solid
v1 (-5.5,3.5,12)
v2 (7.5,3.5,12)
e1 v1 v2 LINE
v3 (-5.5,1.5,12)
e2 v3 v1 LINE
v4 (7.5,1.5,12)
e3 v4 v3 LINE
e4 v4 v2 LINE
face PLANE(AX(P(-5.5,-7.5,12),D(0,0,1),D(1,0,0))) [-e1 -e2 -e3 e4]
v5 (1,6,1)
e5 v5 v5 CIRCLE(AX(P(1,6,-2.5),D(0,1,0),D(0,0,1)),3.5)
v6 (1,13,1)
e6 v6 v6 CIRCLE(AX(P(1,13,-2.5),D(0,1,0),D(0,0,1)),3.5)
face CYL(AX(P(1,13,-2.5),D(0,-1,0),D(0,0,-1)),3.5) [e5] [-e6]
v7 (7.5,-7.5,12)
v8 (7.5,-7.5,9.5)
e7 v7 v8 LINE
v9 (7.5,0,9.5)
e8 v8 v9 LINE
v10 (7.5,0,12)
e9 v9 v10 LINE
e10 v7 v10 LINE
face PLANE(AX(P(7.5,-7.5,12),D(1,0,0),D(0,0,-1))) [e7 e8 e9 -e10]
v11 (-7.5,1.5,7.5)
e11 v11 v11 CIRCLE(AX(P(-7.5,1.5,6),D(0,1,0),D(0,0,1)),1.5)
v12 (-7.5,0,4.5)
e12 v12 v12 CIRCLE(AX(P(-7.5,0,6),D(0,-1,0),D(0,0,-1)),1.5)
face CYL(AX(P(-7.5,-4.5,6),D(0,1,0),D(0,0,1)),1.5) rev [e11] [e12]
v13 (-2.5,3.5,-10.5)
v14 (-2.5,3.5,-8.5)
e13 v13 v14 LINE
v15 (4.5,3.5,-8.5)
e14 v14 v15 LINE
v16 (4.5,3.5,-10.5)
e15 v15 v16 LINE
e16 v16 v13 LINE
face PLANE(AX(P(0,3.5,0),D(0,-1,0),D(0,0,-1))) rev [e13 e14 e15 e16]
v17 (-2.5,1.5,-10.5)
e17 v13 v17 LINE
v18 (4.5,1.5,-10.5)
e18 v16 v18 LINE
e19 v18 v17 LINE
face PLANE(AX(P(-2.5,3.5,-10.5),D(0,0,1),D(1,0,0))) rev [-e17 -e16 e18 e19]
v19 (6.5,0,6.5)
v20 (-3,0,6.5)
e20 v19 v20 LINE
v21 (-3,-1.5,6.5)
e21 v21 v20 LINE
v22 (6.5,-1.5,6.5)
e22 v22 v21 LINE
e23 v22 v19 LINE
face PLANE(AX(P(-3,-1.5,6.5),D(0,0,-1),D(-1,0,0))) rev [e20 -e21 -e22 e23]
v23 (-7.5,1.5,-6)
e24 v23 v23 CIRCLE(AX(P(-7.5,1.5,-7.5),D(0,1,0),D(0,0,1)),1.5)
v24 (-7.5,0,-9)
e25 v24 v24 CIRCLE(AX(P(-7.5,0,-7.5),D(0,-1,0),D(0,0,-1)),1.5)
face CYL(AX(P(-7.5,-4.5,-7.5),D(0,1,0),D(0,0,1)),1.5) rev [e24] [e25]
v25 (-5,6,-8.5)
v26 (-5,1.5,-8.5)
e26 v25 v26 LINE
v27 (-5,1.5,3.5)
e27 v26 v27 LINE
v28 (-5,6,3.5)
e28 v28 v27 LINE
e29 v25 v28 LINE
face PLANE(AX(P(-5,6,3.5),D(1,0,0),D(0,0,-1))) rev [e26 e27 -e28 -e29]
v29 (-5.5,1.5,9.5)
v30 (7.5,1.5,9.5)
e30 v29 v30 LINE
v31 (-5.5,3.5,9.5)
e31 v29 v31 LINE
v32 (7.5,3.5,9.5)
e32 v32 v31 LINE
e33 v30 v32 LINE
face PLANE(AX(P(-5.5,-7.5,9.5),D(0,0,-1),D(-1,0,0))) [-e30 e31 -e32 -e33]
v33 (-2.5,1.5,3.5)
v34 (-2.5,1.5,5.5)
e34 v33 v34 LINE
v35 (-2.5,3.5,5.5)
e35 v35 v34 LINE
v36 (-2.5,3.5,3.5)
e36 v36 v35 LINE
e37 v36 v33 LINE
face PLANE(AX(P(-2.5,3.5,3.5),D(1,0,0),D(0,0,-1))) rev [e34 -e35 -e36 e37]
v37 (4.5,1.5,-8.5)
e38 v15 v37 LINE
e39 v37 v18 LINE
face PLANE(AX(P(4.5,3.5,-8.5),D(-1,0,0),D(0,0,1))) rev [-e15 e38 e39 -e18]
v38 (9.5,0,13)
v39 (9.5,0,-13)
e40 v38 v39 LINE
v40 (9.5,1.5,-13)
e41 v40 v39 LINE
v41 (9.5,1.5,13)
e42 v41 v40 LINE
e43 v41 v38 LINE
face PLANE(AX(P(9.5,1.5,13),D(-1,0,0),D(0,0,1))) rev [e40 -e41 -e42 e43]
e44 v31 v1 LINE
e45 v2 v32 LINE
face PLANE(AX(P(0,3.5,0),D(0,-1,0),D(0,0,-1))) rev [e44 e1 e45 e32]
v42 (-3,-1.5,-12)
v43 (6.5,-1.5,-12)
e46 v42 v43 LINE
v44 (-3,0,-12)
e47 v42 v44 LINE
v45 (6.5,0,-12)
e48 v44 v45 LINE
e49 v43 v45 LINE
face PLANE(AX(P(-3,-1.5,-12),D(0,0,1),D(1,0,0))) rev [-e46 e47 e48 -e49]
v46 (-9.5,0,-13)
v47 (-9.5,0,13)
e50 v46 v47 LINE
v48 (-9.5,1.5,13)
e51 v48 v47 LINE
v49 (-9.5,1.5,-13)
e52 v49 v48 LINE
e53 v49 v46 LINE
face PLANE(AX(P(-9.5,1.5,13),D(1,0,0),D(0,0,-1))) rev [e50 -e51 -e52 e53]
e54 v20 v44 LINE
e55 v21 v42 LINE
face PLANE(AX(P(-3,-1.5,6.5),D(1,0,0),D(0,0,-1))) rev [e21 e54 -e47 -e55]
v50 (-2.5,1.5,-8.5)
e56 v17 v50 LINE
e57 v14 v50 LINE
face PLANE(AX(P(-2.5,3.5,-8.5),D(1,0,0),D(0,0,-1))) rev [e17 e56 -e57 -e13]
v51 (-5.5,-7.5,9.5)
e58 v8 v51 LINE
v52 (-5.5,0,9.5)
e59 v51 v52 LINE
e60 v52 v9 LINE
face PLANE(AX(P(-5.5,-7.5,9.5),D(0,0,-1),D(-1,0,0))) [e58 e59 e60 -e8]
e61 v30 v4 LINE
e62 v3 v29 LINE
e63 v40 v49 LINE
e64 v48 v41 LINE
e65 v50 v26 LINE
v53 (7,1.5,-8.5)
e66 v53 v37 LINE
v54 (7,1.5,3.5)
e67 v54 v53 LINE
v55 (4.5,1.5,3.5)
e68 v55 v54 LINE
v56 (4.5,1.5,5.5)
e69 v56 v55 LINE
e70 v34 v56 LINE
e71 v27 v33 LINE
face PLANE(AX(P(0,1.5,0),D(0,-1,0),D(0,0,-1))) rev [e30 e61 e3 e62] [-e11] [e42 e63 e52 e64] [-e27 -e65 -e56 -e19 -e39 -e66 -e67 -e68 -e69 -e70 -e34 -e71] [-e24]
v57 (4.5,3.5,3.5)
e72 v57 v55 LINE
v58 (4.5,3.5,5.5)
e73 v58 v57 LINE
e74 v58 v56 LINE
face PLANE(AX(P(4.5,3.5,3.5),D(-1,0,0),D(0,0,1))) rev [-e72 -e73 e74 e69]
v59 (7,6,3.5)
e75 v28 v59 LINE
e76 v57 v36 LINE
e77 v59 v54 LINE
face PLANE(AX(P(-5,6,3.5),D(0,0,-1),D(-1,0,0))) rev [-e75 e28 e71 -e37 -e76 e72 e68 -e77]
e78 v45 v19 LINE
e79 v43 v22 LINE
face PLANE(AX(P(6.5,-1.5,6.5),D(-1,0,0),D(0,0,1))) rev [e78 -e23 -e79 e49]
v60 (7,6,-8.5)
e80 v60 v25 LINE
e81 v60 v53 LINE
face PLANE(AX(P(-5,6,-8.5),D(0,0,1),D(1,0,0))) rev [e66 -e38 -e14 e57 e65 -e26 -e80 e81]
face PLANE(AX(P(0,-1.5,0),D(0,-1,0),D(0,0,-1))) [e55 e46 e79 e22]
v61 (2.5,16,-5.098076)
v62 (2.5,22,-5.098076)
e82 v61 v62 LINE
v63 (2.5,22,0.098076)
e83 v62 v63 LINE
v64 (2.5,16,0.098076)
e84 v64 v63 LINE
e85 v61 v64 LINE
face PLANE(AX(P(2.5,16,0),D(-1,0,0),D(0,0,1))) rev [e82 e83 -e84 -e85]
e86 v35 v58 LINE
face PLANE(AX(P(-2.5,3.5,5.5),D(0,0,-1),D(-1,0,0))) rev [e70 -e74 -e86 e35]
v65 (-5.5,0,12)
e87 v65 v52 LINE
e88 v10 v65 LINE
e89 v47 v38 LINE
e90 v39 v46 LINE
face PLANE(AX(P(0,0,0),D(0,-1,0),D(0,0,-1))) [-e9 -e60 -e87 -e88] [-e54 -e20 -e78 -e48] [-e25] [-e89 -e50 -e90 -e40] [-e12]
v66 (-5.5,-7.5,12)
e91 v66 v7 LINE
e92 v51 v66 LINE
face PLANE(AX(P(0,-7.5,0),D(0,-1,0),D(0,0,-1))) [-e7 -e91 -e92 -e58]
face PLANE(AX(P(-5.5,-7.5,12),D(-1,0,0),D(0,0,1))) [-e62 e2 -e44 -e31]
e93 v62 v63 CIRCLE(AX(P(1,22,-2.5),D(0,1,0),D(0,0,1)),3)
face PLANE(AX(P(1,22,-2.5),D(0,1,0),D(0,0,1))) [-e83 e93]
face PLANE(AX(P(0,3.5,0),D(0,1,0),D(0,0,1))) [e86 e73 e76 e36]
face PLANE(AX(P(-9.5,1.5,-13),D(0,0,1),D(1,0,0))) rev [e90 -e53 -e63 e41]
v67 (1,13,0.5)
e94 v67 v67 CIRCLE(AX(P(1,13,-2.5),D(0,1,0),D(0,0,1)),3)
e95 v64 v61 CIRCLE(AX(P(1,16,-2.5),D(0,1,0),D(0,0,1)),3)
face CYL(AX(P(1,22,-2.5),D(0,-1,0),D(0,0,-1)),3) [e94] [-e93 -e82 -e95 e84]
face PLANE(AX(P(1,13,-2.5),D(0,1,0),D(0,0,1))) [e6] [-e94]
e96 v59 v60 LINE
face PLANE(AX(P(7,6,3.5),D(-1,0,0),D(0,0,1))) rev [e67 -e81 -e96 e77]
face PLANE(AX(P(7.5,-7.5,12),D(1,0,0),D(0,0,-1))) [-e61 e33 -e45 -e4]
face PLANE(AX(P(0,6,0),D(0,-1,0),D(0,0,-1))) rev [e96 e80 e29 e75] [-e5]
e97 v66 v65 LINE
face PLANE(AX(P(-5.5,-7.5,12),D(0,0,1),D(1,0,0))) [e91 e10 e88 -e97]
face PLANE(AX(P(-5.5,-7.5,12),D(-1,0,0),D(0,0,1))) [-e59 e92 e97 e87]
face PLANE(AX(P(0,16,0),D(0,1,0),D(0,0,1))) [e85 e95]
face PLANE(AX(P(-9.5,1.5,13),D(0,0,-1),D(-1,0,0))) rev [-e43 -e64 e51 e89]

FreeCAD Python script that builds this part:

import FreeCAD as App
import Part
import Sketcher
from FreeCAD import Vector


def add_polygon(sketch, points):
    """Adds a closed chain of lines whose ends are joined by coincident constraints."""
    first, n = sketch.GeometryCount, len(points)
    for a, b in zip(points, points[1:] + points[:1]):
        sketch.addGeometry(Part.LineSegment(App.Vector(*a, 0), App.Vector(*b, 0)), False)
    for i in range(n):
        sketch.addConstraint(Sketcher.Constraint("Coincident", first + i, 2, first + (i + 1) % n, 1))

doc = App.newDocument("Part")
body = doc.addObject("PartDesign::Body", "Body")

# Sketch on XZ plane
sketch1 = body.newObject("Sketcher::SketchObject", "Sketch")
sketch1.AttachmentSupport = (doc.getObject("XZ_Plane"), [""])
sketch1.MapMode = "FlatFace"
add_polygon(sketch1, [(-10, -13), (-10, 13), (10, 13), (10, -13)])  # lines 0-3
sketch1.addConstraint([
    Sketcher.Constraint("Vertical", 0),
    Sketcher.Constraint("Horizontal", 1),
    Sketcher.Constraint("Vertical", 2),
    Sketcher.Constraint("Horizontal", 3),
    Sketcher.Constraint("Symmetric", 0, 2, 2, 2, -1, 1),
    Sketcher.Constraint("DistanceX", 1, 1, 1, 2, 19.0),
    Sketcher.Constraint("DistanceY", 0, 1, 0, 2, 26.0),
])
pad1 = body.newObject("PartDesign::Pad", "Pad")
pad1.Profile = sketch1
pad1.Length = 1.5
pad1.Reversed = True

# Sketch on XZ plane
sketch2 = body.newObject("Sketcher::SketchObject", "Sketch001")
sketch2.AttachmentSupport = (doc.getObject("XZ_Plane"), [""])
sketch2.MapMode = "FlatFace"
sketch2.AttachmentOffset = App.Placement(Vector(0, 0, -1.5), App.Rotation())
add_polygon(sketch2, [(-5, -8), (-5, 4), (7, 4), (7, -8)])  # lines 0-3
sketch2.addConstraint([
    Sketcher.Constraint("Vertical", 0),
    Sketcher.Constraint("Horizontal", 1),
    Sketcher.Constraint("Vertical", 2),
    Sketcher.Constraint("Horizontal", 3),
    Sketcher.Constraint("Equal", 3, 0),
    Sketcher.Constraint("DistanceX", 1, 1, 1, 2, 12.0),
    Sketcher.Constraint("DistanceX", 0, 2, -1, 1, 5.0),
    Sketcher.Constraint("DistanceY", -1, 1, 0, 2, 3.5),
])
pad2 = body.newObject("PartDesign::Pad", "Pad001")
pad2.Profile = sketch2
pad2.Length = 4.5
pad2.Reversed = True

# Sketch on XZ plane
sketch3 = body.newObject("Sketcher::SketchObject", "Sketch002")
sketch3.AttachmentSupport = (doc.getObject("XZ_Plane"), [""])
sketch3.MapMode = "FlatFace"
sketch3.AttachmentOffset = App.Placement(Vector(0, 0, -6), App.Rotation())
sketch3.addGeometry(Part.Circle(Vector(1, -2.5, 0), Vector(0, 0, 1), 3.5), False)
sketch3.addConstraint([
    Sketcher.Constraint("Diameter", 0, 7.0),
    Sketcher.Constraint("DistanceX", -1, 1, 0, 3, 1.0),
    Sketcher.Constraint("DistanceY", 0, 3, -1, 1, 2.5),
])
pad3 = body.newObject("PartDesign::Pad", "Pad002")
pad3.Profile = sketch3
pad3.Length = 7
pad3.Reversed = True

# Sketch on XZ plane
sketch4 = body.newObject("Sketcher::SketchObject", "Sketch003")
sketch4.AttachmentSupport = (doc.getObject("XZ_Plane"), [""])
sketch4.MapMode = "FlatFace"
sketch4.AttachmentOffset = App.Placement(Vector(0, 0, -13), App.Rotation())
sketch4.addGeometry(Part.Circle(Vector(1, -2.5, 0), Vector(0, 0, 1), 3), False)
sketch4.addConstraint([
    Sketcher.Constraint("Diameter", 0, 6.0),
    Sketcher.Constraint("DistanceX", -1, 1, 0, 3, 1.0),
    Sketcher.Constraint("DistanceY", 0, 3, -1, 1, 2.5),
])
pad4 = body.newObject("PartDesign::Pad", "Pad003")
pad4.Profile = sketch4
pad4.Length = 9
pad4.Reversed = True

# Sketch on XZ plane
sketch5 = body.newObject("Sketcher::SketchObject", "Sketch004")
sketch5.AttachmentSupport = (doc.getObject("XZ_Plane"), [""])
sketch5.MapMode = "FlatFace"
sketch5.AttachmentOffset = App.Placement(Vector(0, 0, -22), App.Rotation())
add_polygon(sketch5, [(2, -59), (2, 54), (109, 54), (109, -59)])  # lines 0-3
sketch5.addConstraint([
    Sketcher.Constraint("Vertical", 0),
    Sketcher.Constraint("Horizontal", 1),
    Sketcher.Constraint("Vertical", 2),
    Sketcher.Constraint("Horizontal", 3),
    Sketcher.Constraint("DistanceX", -1, 1, 0, 2, 2.5),
    Sketcher.Constraint("DistanceX", 1, 1, 1, 2, 106.859921),
    Sketcher.Constraint("DistanceY", 0, 1, 0, 2, 112.056073),
    Sketcher.Constraint("DistanceY", -1, 1, 0, 2, 53.528036),
])
pocket1 = body.newObject("PartDesign::Pocket", "Pocket")
pocket1.Profile = sketch5
pocket1.Length = 6
pocket1.Reversed = True

# Sketch on XZ plane
sketch6 = body.newObject("Sketcher::SketchObject", "Sketch005")
sketch6.AttachmentSupport = (doc.getObject("XZ_Plane"), [""])
sketch6.MapMode = "FlatFace"
sketch6.AttachmentOffset = App.Placement(Vector(0, 0, -1.5), App.Rotation())
sketch6.addGeometry([
    Part.Circle(Vector(-7.5, -7.5, 0), Vector(0, 0, 1), 1.5),
    Part.Circle(Vector(-7.5, 6, 0), Vector(0, 0, 1), 1.5),
], False)
sketch6.addConstraint([
    Sketcher.Constraint("Equal", 0, 1),
    Sketcher.Constraint("Vertical", 0, 3, 1, 3),
    Sketcher.Constraint("Diameter", 0, 3.0),
    Sketcher.Constraint("DistanceY", -1, 1, 1, 3, 6.0),
    Sketcher.Constraint("DistanceX", 0, 3, -1, 1, 7.5),
    Sketcher.Constraint("DistanceY", 0, 3, -1, 1, 7.5),
])
pocket2 = body.newObject("PartDesign::Pocket", "Pocket001")
pocket2.Profile = sketch6
pocket2.Length = 6
pocket2.Reversed = True

# Sketch on XZ plane
sketch7 = body.newObject("Sketcher::SketchObject", "Sketch006")
sketch7.AttachmentSupport = (doc.getObject("XZ_Plane"), [""])
sketch7.MapMode = "FlatFace"
sketch7.AttachmentOffset = App.Placement(Vector(0, 0, -1.5), App.Rotation())
add_polygon(sketch7, [(-5.5, 9.5), (-5.5, 12), (7.5, 12), (7.5, 9.5)])  # lines 0-3
sketch7.addConstraint([
    Sketcher.Constraint("Vertical", 0),
    Sketcher.Constraint("Horizontal", 1),
    Sketcher.Constraint("Vertical", 2),
    Sketcher.Constraint("Horizontal", 3),
    Sketcher.Constraint("DistanceX", 1, 1, 1, 2, 13.0),
    Sketcher.Constraint("DistanceY", 0, 1, 0, 2, 2.5),
    Sketcher.Constraint("DistanceY", -1, 1, 0, 2, 12.0),
    Sketcher.Constraint("DistanceX", 0, 2, -1, 1, 5.5),
])
pad5 = body.newObject("PartDesign::Pad", "Pad004")
pad5.Profile = sketch7
pad5.Type = "TwoLengths"
pad5.Length = 2
pad5.Length2 = 9
pad5.Reversed = True

# Sketch on XZ plane
sketch8 = body.newObject("Sketcher::SketchObject", "Sketch007")
sketch8.AttachmentSupport = (doc.getObject("XZ_Plane"), [""])
sketch8.MapMode = "FlatFace"
add_polygon(sketch8, [(-3, 6), (-3, -12), (6, -12), (6, 6)])  # lines 0-3
sketch8.addConstraint([
    Sketcher.Constraint("Vertical", 0),
    Sketcher.Constraint("Horizontal", 1),
    Sketcher.Constraint("Vertical", 2),
    Sketcher.Constraint("Horizontal", 3),
    Sketcher.Constraint("DistanceX", 1, 1, 1, 2, 9.5),
    Sketcher.Constraint("DistanceY", 0, 2, 0, 1, 18.5),
    Sketcher.Constraint("DistanceX", 0, 2, -1, 1, 3.0),
    Sketcher.Constraint("DistanceY", 0, 2, -1, 1, 12.0),
])
pad6 = body.newObject("PartDesign::Pad", "Pad005")
pad6.Profile = sketch8
pad6.Length = 1.5

# Sketch on XZ plane
sketch9 = body.newObject("Sketcher::SketchObject", "Sketch008")
sketch9.AttachmentSupport = (doc.getObject("XZ_Plane"), [""])
sketch9.MapMode = "FlatFace"
sketch9.AttachmentOffset = App.Placement(Vector(0, 0, -1.5), App.Rotation())
add_polygon(sketch9, [(-2.5, -10.5), (-2.5, -8.5), (4.5, -8.5), (4.5, -10.5)])  # lines 0-3
add_polygon(sketch9, [(-2.5, 3.5), (-2.5, 5.5), (4.5, 5.5), (4.5, 3.5)])  # lines 4-7
sketch9.addConstraint([
    Sketcher.Constraint("Vertical", 0),
    Sketcher.Constraint("Horizontal", 1),
    Sketcher.Constraint("Vertical", 2),
    Sketcher.Constraint("Horizontal", 3),
    Sketcher.Constraint("Vertical", 4),
    Sketcher.Constraint("Horizontal", 5),
    Sketcher.Constraint("Vertical", 6),
    Sketcher.Constraint("Horizontal", 7),
    Sketcher.Constraint("Vertical", 3, 2, 4, 2),
    Sketcher.Constraint("Vertical", 2, 2, 5, 2),
    Sketcher.Constraint("Equal", 2, 4),
    Sketcher.Constraint("DistanceX", 1, 1, 1, 2, 7.0),
    Sketcher.Constraint("DistanceY", 0, 1, 0, 2, 2.0),
    Sketcher.Constraint("DistanceY", 0, 2, 4, 2, 14.0),
    Sketcher.Constraint("DistanceX", 0, 2, -1, 1, 2.5),
    Sketcher.Constraint("DistanceY", 0, 2, -1, 1, 8.5),
])
pad7 = body.newObject("PartDesign::Pad", "Pad006")
pad7.Profile = sketch9
pad7.Length = 2
pad7.Reversed = True

doc.recompute()
